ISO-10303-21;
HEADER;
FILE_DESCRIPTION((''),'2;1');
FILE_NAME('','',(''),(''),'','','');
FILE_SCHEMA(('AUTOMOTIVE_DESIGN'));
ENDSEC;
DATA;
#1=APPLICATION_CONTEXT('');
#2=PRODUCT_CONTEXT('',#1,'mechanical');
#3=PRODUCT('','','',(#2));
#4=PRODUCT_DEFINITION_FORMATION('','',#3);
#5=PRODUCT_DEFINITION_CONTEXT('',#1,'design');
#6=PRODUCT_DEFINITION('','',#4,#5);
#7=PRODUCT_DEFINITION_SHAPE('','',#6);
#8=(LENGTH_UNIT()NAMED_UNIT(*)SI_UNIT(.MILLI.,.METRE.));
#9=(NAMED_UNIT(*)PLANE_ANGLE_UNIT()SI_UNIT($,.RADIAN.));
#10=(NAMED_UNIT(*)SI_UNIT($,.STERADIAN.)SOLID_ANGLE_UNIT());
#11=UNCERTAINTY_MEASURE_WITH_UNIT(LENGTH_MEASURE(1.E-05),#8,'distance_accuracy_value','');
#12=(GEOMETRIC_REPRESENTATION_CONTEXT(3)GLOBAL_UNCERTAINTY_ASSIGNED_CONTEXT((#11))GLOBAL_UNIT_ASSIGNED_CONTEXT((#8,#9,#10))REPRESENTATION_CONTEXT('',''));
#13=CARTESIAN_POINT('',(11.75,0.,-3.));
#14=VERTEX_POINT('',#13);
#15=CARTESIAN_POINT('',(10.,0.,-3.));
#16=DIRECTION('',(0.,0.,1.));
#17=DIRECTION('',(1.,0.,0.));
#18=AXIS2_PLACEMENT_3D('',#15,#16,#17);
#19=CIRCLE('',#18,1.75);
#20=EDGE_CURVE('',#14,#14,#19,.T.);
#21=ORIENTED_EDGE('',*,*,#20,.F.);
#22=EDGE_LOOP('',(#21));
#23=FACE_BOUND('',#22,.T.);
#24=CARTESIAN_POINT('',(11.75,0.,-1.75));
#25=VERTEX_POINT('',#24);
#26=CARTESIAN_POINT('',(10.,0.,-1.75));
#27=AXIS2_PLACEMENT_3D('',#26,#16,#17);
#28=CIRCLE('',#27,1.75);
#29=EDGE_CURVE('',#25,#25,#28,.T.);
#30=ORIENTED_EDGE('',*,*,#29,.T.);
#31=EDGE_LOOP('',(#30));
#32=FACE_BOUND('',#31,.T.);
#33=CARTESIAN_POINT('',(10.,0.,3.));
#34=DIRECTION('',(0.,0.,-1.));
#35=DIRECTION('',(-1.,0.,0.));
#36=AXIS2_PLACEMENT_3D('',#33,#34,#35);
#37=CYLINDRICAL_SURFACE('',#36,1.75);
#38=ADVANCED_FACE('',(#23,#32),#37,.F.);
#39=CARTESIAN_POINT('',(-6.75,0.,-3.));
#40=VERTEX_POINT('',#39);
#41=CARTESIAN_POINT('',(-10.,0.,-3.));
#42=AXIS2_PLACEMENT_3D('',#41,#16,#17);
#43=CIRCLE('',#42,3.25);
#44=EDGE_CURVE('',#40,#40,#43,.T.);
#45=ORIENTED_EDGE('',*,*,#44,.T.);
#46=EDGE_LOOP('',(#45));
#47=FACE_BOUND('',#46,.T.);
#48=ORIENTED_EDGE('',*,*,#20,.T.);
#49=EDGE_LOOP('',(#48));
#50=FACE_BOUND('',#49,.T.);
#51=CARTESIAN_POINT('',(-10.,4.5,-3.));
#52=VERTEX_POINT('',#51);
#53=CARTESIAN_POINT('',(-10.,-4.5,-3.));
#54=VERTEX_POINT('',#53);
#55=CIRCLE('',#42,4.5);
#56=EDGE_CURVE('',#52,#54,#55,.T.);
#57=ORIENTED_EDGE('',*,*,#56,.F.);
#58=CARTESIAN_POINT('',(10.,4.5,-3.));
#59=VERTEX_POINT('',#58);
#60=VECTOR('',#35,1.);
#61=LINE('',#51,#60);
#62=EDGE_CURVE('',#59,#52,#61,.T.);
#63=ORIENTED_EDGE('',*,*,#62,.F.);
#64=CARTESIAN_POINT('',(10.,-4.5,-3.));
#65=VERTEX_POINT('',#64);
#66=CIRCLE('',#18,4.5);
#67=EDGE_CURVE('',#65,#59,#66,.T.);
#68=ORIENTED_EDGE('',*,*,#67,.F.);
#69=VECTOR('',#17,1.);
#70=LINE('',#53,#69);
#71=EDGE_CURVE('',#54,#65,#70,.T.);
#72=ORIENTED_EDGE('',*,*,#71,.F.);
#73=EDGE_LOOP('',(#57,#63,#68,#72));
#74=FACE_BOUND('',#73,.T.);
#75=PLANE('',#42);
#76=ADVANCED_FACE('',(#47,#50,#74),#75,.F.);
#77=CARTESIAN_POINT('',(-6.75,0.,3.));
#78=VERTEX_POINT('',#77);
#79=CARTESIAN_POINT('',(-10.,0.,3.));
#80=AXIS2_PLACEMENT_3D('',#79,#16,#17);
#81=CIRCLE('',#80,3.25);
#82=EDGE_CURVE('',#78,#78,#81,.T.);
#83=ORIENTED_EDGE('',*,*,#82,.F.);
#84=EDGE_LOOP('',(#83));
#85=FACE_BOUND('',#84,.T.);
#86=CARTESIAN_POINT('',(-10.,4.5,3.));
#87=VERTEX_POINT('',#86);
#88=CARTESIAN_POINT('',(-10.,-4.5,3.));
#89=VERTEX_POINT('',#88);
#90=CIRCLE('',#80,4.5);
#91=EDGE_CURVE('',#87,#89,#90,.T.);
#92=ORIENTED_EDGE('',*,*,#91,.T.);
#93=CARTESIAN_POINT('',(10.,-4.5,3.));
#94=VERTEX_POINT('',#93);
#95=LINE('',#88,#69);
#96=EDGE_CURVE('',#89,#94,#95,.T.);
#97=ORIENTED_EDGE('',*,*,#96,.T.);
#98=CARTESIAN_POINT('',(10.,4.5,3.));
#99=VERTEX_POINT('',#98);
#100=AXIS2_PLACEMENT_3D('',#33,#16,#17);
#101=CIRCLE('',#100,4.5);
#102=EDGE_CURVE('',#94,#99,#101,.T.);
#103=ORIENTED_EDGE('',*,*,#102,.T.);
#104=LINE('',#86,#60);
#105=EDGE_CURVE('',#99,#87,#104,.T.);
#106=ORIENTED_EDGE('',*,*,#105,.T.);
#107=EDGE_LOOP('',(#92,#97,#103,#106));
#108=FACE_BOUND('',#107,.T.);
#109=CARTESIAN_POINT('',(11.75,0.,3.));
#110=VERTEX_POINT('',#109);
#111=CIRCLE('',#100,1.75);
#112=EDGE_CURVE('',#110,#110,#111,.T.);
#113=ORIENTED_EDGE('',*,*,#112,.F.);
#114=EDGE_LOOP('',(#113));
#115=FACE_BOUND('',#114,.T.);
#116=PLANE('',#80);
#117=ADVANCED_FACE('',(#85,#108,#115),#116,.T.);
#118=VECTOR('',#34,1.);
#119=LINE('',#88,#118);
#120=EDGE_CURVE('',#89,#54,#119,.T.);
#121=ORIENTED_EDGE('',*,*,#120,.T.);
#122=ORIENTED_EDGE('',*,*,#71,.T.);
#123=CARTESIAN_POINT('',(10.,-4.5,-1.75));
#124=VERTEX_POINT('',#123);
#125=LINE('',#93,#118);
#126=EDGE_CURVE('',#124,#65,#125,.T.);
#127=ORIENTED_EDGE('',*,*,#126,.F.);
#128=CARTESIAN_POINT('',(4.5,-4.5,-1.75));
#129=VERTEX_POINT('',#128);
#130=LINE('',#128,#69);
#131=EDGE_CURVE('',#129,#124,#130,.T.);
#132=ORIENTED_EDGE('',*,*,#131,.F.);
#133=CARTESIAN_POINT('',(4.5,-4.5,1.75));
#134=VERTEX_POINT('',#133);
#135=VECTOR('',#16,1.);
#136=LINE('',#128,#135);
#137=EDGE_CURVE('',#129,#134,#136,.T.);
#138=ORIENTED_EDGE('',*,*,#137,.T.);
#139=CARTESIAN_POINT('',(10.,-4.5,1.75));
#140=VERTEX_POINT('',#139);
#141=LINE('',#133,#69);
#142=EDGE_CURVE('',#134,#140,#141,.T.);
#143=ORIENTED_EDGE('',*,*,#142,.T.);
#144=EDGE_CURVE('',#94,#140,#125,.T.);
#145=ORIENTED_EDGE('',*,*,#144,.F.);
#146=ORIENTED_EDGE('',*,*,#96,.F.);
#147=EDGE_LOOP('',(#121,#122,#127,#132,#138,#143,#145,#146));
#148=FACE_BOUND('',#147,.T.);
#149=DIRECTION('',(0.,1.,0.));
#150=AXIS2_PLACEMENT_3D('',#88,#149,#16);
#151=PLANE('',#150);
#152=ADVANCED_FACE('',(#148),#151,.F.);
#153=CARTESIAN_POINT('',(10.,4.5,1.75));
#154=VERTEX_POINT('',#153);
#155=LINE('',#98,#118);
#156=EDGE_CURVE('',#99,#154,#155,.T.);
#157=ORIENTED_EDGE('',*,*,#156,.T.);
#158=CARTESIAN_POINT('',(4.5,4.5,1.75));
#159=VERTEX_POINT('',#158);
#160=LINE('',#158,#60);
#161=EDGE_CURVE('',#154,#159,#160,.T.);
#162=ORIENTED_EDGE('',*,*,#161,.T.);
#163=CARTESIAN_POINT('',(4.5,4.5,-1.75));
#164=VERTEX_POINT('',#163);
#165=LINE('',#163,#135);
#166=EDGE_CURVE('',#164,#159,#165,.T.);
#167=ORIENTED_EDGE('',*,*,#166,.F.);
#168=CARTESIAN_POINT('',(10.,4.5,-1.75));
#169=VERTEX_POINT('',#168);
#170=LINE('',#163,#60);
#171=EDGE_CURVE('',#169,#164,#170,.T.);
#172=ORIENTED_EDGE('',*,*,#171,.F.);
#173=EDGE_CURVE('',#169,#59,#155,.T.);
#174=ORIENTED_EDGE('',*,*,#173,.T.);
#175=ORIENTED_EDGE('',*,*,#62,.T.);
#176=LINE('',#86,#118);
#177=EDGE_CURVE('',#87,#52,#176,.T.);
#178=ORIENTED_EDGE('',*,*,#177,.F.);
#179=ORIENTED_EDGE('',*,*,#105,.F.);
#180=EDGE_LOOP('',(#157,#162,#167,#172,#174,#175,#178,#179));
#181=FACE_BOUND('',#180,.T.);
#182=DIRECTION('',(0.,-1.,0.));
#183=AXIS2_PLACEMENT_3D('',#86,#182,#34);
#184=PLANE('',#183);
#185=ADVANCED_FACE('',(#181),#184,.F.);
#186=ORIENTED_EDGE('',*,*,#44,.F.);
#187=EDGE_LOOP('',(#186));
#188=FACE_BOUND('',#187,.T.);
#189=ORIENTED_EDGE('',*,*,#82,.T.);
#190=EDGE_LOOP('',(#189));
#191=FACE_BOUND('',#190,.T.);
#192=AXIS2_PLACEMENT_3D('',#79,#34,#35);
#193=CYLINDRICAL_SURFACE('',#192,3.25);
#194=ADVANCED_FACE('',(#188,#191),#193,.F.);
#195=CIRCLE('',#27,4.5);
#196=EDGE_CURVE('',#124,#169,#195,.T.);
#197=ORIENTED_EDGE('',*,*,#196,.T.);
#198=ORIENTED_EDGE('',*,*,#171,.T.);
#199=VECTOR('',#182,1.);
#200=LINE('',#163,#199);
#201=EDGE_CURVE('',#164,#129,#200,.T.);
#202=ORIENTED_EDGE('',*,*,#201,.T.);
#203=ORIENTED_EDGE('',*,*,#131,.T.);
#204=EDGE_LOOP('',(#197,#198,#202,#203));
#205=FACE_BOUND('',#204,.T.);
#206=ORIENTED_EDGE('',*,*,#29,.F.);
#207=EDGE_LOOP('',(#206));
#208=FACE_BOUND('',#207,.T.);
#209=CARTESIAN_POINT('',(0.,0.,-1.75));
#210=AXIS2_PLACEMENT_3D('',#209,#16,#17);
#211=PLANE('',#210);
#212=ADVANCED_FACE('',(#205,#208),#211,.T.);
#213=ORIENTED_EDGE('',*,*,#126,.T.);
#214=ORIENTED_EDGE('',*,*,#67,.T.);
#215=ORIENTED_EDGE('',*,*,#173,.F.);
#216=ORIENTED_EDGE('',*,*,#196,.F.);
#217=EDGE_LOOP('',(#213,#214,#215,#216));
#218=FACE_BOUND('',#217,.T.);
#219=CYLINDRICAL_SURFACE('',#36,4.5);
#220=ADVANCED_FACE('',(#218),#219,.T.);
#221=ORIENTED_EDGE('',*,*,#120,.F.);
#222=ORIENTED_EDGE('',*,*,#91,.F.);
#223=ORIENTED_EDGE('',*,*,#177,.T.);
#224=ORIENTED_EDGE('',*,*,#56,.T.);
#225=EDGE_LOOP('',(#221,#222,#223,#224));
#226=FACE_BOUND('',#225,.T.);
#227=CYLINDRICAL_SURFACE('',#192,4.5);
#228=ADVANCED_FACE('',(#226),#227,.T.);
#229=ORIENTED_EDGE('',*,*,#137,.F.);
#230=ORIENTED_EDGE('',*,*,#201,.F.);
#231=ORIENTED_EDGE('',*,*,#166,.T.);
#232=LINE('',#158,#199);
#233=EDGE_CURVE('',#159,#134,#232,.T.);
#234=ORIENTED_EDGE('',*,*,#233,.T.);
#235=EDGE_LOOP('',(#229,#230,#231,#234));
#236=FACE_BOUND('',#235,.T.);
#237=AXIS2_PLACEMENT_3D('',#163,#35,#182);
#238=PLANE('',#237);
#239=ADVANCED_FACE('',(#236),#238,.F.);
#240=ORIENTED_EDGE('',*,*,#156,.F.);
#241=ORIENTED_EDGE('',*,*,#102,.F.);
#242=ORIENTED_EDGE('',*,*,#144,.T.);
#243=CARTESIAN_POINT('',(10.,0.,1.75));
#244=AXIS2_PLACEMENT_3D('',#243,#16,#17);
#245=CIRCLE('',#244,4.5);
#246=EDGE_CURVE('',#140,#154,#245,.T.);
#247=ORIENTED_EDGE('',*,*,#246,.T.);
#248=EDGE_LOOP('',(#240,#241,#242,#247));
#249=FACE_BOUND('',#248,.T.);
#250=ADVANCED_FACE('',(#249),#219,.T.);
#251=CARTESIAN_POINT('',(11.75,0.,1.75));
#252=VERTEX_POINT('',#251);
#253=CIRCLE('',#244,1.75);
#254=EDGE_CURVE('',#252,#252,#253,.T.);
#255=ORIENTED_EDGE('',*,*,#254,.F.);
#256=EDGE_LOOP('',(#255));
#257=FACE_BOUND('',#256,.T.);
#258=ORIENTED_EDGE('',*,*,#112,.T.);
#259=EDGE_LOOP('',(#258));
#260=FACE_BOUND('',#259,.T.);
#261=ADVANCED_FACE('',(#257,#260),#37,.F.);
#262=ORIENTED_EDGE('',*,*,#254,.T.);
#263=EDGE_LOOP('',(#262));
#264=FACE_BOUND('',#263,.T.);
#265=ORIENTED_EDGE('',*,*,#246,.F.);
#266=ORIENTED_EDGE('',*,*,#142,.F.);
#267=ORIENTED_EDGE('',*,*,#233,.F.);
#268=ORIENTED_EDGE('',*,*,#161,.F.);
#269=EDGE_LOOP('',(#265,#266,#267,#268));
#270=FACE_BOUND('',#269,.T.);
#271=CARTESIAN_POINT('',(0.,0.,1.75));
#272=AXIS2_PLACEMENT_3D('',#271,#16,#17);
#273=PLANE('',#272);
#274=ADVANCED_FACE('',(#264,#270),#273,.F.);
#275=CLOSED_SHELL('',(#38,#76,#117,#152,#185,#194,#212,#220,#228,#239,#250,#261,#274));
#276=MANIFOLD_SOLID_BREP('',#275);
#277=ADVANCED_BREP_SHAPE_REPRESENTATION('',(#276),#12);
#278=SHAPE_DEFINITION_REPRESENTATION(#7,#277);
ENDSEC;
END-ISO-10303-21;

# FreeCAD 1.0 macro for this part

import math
import FreeCAD as App
import Part
import Sketcher
from FreeCAD import Vector

doc = App.newDocument("Part")
body = doc.addObject("PartDesign::Body", "Body")

# Sketch on XY plane
sketch1 = body.newObject("Sketcher::SketchObject", "Sketch")
sketch1.AttachmentSupport = (doc.getObject("XY_Plane"), [""])
sketch1.MapMode = "FlatFace"
sketch1.addGeometry([
    Part.LineSegment(Vector(10, 4.5, 0), Vector(-10, 4.5, 0)),  # 0
    Part.ArcOfCircle(Part.Circle(Vector(-10, 0, 0), Vector(0, 0, 1), 4.5), math.radians(90), math.radians(270)),  # 1
    Part.LineSegment(Vector(-10, -4.5, 0), Vector(10, -4.5, 0)),  # 2
    Part.ArcOfCircle(Part.Circle(Vector(10, 0, 0), Vector(0, 0, 1), 4.5), math.radians(-90), math.radians(90)),  # 3
    Part.Circle(Vector(10, 0, 0), Vector(0, 0, 1), 1.8),  # 4
    Part.Circle(Vector(-10, 0, 0), Vector(0, 0, 1), 3.2),  # 5
], False)
sketch1.addConstraint([
    Sketcher.Constraint("Tangent", 0, 2, 1, 1),
    Sketcher.Constraint("Tangent", 1, 2, 2, 1),
    Sketcher.Constraint("Tangent", 2, 2, 3, 1),
    Sketcher.Constraint("Tangent", 3, 2, 0, 1),
    Sketcher.Constraint("Horizontal", 0),
    Sketcher.Constraint("Horizontal", 2),
    Sketcher.Constraint("Coincident", 4, 3, 3, 3),
    Sketcher.Constraint("Coincident", 5, 3, 1, 3),
    Sketcher.Constraint("Symmetric", 1, 3, 3, 3, -1, 1),
    Sketcher.Constraint("Diameter", 4, 3.5),
    Sketcher.Constraint("Diameter", 5, 6.5),
    Sketcher.Constraint("Radius", 1, 4.5),
    Sketcher.Constraint("DistanceX", 0, 2, 0, 1, 20.0),
])
pad1 = body.newObject("PartDesign::Pad", "Pad")
pad1.Profile = sketch1
pad1.Length = 6
pad1.Midplane = True

# Sketch on XY plane
sketch2 = body.newObject("Sketcher::SketchObject", "Sketch001")
sketch2.AttachmentSupport = (doc.getObject("XY_Plane"), [""])
sketch2.MapMode = "FlatFace"
sketch2.addGeometry([
    Part.LineSegment(Vector(4, 4, 0), Vector(4, -4, 0)),
    Part.LineSegment(Vector(4, -4, 0), Vector(14, -4, 0)),
    Part.LineSegment(Vector(14, -4, 0), Vector(14, 4, 0)),
    Part.LineSegment(Vector(14, 4, 0), Vector(4, 4, 0)),
], False)
sketch2.addConstraint([
    Sketcher.Constraint("Coincident", 0, 2, 1, 1),
    Sketcher.Constraint("Coincident", 1, 2, 2, 1),
    Sketcher.Constraint("Coincident", 2, 2, 3, 1),
    Sketcher.Constraint("Coincident", 3, 2, 0, 1),
    Sketcher.Constraint("Vertical", 0),
    Sketcher.Constraint("Horizontal", 1),
    Sketcher.Constraint("Vertical", 2),
    Sketcher.Constraint("Horizontal", 3),
    Sketcher.Constraint("DistanceX", 1, 1, 1, 2, 10.0),
    Sketcher.Constraint("DistanceY", 0, 2, 0, 1, 9.0),
    Sketcher.Constraint("DistanceX", -1, 1, 0, 2, 4.5),
    Sketcher.Constraint("DistanceY", 0, 2, -1, 1, 4.5),
])
pocket1 = body.newObject("PartDesign::Pocket", "Pocket")
pocket1.Profile = sketch2
pocket1.Length = 3.5
pocket1.Midplane = True

doc.recompute()
